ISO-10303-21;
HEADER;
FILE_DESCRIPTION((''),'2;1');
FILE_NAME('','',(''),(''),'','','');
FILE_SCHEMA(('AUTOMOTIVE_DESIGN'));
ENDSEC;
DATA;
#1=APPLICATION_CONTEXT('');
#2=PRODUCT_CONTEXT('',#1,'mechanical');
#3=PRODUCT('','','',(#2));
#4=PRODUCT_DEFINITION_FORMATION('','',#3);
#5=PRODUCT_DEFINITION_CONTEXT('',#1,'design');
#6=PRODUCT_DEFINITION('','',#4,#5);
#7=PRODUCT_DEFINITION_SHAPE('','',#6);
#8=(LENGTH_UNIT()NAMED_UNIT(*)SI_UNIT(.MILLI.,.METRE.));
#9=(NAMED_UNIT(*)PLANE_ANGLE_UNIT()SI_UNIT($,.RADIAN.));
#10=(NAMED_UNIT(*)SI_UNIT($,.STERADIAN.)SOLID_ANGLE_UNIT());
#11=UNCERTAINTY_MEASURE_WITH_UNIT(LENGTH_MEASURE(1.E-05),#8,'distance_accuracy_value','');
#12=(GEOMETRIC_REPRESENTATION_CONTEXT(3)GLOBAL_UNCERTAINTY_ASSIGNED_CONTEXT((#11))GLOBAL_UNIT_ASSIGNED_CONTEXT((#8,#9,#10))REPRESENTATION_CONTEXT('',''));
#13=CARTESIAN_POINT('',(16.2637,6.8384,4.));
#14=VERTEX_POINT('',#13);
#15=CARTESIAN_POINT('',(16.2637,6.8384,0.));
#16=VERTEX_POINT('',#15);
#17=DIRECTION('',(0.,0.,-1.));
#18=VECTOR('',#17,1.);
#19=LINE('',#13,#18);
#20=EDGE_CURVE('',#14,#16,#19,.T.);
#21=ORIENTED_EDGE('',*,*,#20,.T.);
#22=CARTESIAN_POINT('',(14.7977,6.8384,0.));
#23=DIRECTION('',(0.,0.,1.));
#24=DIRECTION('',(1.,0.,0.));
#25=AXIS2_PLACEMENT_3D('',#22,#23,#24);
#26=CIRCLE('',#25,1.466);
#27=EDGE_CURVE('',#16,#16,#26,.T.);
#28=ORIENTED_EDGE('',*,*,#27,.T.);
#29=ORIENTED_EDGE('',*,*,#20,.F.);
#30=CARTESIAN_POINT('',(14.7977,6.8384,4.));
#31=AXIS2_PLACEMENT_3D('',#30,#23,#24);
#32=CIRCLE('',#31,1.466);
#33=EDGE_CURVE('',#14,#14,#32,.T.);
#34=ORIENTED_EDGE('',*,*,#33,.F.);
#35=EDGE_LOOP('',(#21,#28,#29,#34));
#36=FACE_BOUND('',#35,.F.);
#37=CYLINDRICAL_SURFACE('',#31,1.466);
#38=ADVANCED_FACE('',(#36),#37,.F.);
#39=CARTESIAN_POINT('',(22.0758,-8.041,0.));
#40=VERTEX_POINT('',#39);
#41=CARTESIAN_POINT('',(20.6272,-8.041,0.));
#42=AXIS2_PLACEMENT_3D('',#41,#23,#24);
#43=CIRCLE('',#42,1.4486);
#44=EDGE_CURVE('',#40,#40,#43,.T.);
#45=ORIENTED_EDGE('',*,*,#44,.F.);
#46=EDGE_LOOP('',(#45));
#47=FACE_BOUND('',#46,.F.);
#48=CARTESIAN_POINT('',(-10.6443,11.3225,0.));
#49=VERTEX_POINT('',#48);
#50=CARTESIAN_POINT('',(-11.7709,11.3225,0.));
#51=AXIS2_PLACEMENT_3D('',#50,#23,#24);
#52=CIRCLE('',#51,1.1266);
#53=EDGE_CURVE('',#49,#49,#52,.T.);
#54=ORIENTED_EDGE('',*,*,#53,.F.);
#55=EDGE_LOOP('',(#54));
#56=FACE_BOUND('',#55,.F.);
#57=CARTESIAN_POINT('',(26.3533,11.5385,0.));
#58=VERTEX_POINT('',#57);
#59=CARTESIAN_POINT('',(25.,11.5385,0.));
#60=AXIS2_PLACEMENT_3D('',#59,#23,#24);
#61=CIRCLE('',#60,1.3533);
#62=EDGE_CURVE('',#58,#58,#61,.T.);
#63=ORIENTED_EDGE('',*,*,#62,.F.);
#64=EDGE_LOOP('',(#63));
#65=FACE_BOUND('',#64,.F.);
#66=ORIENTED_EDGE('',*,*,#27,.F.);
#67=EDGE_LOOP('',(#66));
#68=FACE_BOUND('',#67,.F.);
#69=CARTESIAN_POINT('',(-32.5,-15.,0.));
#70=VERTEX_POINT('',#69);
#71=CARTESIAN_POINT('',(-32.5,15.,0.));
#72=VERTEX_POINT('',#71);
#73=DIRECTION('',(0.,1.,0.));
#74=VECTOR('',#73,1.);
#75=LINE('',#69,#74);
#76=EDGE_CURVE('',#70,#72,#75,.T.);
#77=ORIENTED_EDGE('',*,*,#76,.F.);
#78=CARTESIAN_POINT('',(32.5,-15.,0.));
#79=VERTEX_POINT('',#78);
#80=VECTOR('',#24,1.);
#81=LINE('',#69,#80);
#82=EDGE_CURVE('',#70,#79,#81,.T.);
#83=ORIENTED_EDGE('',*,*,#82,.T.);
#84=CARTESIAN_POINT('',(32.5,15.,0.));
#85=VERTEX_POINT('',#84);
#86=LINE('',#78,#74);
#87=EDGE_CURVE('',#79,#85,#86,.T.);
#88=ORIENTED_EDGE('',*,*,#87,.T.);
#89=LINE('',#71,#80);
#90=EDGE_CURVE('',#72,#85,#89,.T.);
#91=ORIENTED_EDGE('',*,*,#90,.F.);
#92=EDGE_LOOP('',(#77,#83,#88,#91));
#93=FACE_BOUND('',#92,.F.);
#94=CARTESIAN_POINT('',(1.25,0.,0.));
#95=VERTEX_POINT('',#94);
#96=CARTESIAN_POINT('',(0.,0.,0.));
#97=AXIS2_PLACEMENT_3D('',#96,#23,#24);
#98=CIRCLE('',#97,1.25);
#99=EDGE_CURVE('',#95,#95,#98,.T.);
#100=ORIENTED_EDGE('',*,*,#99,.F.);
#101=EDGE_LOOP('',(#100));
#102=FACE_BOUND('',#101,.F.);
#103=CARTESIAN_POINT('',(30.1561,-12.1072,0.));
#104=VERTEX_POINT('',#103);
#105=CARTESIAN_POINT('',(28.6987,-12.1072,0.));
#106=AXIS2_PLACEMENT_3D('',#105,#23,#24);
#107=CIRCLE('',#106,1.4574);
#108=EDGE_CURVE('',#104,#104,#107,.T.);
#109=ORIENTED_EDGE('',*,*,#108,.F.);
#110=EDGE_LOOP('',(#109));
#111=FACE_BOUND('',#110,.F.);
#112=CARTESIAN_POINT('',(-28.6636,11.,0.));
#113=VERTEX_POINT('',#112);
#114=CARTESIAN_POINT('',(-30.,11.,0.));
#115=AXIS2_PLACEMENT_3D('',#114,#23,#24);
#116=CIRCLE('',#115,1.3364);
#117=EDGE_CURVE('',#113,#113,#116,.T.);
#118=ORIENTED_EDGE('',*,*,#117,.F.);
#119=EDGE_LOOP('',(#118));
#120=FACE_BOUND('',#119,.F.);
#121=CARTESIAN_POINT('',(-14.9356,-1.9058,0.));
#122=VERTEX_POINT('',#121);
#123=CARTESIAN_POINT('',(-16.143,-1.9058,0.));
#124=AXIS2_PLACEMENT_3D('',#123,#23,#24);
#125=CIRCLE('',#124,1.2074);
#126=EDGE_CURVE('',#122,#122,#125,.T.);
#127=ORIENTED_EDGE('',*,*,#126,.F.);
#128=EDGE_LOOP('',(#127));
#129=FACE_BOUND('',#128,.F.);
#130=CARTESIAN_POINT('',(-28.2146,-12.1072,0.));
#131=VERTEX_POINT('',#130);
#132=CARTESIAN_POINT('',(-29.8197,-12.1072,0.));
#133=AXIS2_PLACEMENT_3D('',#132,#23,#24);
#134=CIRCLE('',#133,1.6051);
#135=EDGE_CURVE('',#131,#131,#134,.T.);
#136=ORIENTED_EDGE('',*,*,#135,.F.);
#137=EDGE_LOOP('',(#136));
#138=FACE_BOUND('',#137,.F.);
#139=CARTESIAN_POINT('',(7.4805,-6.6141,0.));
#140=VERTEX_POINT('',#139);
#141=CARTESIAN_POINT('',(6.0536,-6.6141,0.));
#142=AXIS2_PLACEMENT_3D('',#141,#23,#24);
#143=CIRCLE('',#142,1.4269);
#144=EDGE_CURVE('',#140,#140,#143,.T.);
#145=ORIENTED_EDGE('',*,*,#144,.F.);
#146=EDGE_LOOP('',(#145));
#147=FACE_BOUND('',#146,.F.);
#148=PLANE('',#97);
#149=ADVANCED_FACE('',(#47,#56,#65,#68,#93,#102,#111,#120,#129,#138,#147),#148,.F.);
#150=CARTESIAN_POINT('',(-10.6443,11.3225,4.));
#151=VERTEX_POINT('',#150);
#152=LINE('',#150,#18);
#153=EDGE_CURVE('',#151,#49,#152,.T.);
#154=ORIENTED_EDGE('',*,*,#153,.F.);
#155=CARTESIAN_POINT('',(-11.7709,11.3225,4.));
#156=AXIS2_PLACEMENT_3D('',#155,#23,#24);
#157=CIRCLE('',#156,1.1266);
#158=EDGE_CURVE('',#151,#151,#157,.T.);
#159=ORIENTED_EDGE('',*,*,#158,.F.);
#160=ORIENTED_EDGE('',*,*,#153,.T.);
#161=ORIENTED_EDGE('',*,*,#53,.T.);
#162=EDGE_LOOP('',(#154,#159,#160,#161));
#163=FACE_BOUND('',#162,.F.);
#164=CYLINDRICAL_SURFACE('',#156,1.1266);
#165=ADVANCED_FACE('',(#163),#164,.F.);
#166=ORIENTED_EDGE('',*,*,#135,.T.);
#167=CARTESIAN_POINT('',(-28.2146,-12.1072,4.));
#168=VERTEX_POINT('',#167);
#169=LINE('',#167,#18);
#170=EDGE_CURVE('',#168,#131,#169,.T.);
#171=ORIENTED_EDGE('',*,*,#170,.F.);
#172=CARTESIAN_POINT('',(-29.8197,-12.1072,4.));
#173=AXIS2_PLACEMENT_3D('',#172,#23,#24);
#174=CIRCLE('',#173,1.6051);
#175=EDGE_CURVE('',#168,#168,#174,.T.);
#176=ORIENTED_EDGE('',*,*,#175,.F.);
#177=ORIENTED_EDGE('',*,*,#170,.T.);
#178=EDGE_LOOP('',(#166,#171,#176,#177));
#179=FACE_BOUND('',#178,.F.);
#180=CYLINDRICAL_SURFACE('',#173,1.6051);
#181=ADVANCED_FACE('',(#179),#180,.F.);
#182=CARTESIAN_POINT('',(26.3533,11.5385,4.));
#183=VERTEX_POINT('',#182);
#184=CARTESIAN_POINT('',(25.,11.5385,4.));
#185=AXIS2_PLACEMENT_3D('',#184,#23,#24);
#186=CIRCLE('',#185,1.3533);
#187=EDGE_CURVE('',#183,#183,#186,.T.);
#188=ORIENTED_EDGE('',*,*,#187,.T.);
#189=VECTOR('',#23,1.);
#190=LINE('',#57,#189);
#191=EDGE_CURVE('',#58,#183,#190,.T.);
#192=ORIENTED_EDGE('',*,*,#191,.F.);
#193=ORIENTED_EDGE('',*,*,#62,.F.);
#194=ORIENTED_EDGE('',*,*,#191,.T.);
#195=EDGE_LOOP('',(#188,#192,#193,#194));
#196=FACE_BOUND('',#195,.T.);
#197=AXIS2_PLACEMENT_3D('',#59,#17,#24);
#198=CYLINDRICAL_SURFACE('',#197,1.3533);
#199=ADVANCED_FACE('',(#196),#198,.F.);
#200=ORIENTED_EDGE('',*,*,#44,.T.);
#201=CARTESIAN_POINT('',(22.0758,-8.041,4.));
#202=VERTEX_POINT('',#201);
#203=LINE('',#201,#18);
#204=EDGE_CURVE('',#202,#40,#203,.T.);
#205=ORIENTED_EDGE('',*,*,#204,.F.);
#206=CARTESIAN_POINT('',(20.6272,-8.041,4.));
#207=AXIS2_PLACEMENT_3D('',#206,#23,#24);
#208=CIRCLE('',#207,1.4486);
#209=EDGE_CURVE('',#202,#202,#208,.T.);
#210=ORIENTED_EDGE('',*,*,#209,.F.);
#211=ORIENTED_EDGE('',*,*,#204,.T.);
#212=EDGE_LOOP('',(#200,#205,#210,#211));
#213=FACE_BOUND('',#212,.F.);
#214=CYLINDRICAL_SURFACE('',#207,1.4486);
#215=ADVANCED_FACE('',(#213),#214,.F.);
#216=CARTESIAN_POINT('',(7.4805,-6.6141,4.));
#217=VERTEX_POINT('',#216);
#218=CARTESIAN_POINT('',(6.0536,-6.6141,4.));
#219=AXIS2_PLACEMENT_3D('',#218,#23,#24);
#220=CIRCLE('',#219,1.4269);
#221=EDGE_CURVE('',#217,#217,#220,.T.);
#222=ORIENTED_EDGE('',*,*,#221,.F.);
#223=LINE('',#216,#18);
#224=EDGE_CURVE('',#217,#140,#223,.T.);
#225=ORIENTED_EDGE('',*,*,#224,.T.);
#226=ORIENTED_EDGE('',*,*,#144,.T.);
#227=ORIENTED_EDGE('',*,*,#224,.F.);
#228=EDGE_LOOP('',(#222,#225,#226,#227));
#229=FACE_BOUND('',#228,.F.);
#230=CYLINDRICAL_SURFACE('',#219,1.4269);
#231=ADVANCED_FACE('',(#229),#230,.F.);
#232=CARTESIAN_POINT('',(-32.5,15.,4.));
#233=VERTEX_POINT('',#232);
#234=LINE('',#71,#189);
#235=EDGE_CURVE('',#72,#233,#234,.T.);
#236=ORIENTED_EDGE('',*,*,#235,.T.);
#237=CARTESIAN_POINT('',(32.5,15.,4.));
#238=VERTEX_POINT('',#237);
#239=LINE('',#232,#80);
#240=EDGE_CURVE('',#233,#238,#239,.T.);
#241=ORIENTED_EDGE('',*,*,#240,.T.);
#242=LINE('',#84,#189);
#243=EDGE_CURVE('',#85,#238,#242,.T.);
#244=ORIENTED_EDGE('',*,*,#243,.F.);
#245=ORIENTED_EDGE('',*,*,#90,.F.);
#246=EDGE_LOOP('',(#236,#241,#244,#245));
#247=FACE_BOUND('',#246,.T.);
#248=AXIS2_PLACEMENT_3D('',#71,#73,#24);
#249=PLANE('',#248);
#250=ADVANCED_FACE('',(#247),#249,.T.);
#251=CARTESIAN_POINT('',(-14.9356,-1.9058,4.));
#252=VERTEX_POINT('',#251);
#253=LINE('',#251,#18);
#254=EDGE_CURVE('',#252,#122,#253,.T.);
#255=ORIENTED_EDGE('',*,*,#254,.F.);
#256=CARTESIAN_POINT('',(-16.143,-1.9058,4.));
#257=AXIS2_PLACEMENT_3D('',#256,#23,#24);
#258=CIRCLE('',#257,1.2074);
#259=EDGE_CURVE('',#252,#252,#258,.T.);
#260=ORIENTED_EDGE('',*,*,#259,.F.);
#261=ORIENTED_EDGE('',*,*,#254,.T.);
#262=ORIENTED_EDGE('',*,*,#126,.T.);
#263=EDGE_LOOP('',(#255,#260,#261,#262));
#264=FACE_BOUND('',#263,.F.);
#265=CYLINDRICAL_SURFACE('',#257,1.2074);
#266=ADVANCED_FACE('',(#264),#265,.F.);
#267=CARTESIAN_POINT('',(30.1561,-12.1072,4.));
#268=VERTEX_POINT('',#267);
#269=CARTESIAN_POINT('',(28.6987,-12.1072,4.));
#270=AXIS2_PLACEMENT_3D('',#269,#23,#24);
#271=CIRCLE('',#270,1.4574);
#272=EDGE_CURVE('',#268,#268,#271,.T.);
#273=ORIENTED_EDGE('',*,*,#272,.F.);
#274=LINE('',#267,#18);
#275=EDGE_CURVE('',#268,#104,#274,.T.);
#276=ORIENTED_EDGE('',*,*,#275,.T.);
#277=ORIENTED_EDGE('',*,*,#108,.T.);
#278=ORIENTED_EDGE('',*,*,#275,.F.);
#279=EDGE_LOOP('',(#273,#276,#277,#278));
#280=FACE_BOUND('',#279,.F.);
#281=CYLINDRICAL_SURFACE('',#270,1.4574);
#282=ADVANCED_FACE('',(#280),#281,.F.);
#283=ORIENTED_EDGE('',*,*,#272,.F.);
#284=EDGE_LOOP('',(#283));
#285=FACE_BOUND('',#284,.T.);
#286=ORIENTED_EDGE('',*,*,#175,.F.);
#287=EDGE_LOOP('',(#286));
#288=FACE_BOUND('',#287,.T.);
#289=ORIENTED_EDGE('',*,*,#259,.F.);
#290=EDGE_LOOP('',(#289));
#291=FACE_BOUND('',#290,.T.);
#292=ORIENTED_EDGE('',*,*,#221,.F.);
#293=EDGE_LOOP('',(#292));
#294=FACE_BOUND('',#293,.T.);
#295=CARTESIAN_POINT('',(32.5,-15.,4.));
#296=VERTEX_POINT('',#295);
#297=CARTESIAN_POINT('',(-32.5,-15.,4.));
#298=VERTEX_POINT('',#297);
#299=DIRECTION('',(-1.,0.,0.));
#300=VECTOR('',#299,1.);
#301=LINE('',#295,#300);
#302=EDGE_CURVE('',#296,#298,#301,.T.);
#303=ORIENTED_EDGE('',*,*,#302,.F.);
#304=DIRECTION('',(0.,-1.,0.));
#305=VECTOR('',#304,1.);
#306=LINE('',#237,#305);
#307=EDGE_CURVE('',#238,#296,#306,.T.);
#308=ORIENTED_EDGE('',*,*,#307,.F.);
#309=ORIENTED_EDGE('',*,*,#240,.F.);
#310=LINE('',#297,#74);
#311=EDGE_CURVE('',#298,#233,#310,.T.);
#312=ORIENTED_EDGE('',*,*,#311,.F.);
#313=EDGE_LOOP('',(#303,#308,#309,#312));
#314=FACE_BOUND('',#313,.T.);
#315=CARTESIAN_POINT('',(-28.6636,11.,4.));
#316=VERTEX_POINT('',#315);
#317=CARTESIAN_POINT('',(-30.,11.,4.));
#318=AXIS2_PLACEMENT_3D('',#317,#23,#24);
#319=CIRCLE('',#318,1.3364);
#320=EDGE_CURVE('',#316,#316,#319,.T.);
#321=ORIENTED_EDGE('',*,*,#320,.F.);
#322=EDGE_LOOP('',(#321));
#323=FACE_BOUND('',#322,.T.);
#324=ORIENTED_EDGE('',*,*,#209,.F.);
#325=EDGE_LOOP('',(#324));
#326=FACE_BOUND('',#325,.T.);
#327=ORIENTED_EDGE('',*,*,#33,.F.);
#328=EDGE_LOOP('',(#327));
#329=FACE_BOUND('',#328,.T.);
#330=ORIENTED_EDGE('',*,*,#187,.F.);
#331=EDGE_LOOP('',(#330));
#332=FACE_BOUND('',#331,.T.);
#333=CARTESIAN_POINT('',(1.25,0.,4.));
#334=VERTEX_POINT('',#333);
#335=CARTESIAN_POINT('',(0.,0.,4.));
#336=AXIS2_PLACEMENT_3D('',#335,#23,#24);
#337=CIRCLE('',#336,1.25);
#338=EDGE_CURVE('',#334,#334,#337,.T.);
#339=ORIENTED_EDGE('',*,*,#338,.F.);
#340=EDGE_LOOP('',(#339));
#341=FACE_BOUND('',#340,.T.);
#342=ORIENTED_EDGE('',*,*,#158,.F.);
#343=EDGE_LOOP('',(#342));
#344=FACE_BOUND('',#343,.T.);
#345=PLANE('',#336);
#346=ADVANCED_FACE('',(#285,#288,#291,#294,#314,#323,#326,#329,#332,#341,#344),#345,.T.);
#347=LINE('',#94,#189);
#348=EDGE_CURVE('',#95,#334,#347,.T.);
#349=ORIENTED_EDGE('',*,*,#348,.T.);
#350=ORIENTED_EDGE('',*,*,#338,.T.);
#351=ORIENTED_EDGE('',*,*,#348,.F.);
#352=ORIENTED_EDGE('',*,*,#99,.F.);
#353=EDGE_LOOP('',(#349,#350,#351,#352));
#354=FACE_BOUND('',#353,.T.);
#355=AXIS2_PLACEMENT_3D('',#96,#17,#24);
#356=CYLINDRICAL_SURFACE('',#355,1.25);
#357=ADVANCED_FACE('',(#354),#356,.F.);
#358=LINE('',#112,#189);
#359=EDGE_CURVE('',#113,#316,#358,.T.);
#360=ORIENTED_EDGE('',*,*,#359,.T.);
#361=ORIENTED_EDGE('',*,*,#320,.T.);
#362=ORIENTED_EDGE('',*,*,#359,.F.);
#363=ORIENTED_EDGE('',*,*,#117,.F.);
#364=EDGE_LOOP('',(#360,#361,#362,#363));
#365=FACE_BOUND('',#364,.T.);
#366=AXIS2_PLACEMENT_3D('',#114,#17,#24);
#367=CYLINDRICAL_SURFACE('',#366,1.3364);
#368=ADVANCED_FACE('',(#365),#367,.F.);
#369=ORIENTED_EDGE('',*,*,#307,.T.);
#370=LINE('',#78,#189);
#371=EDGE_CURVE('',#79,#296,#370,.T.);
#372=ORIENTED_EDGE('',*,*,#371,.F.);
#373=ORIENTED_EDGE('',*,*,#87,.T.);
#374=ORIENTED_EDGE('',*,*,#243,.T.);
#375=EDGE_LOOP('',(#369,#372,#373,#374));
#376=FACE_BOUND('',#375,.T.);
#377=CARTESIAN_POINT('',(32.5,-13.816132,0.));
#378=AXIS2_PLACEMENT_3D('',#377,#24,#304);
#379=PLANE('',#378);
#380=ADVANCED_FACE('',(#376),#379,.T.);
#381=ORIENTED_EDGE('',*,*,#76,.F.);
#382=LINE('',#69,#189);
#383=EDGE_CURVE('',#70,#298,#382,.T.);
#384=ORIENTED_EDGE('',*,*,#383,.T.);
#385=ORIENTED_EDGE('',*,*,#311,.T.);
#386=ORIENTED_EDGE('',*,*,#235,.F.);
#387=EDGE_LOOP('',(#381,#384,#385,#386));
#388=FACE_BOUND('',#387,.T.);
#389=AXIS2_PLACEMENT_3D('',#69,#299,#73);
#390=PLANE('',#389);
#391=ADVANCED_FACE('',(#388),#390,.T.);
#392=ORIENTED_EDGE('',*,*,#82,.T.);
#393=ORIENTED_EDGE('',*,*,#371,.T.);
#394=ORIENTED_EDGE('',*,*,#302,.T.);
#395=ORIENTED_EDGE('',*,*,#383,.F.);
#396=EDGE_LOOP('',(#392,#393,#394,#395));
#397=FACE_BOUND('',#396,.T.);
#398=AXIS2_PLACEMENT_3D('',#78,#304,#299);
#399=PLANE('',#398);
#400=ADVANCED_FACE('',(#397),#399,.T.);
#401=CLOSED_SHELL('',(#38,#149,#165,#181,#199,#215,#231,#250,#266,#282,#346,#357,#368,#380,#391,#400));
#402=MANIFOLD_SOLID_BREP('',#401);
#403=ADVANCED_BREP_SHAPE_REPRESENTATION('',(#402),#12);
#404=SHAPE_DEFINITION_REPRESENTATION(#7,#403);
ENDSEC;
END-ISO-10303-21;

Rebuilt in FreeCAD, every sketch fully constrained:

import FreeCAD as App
import Part
import Sketcher
from FreeCAD import Vector


def add_polygon(sketch, points):
    """Adds a closed chain of lines whose ends are joined by coincident constraints."""
    first, n = sketch.GeometryCount, len(points)
    for a, b in zip(points, points[1:] + points[:1]):
        sketch.addGeometry(Part.LineSegment(App.Vector(*a, 0), App.Vector(*b, 0)), False)
    for i in range(n):
        sketch.addConstraint(Sketcher.Constraint("Coincident", first + i, 2, first + (i + 1) % n, 1))

doc = App.newDocument("Part")
params = doc.addObject("Spreadsheet::Sheet", "Params")
for row, (alias, value) in enumerate([
    ("sketch1_diameter", "2.5 mm"),
    ("sketch1_width", "65 mm"),
    ("sketch1_height", "30 mm"),
    ("pad1_length", "4 mm"),
    ("pocket1_length", "5 mm"),
    ("pocket2_length", "5 mm"),
], start=1):
    params.set(f"A{row}", alias)
    params.set(f"B{row}", "=" + value)
    params.setAlias(f"B{row}", alias)

body = doc.addObject("PartDesign::Body", "Body")

sketch1 = doc.addObject("Sketcher::SketchObject", "Sketch")
body.addObject(sketch1)
sketch1.AttachmentSupport = (doc.XY_Plane, [""])
sketch1.MapMode = "FlatFace"
add_polygon(sketch1, [(32.5, -15), (32.5, 15), (-32.5, 15), (-32.5, -15)])
sketch1.addGeometry(Part.Circle(Vector(25, 11.5, 0), Vector(0, 0, 1), 1.4), False)
sketch1.addGeometry(Part.Circle(Vector(0, 0, 0), Vector(0, 0, 1), 1.2), False)
sketch1.addGeometry(Part.Circle(Vector(-30, 11, 0), Vector(0, 0, 1), 1.3), False)
sketch1.addConstraint([
    Sketcher.Constraint("Vertical", 0),
    Sketcher.Constraint("Horizontal", 1),
    Sketcher.Constraint("Vertical", 2),
    Sketcher.Constraint("Horizontal", 3),
    Sketcher.Constraint("Coincident", 5, 3, -1, 1),
    Sketcher.Constraint("Symmetric", 0, 2, 2, 2, -1, 1),
    Sketcher.Constraint("Diameter", 5, 2.5),
    Sketcher.Constraint("DistanceX", 1, 2, 1, 1, 65.0),
    Sketcher.Constraint("DistanceY", 0, 1, 0, 2, 30.0),
    Sketcher.Constraint("DistanceX", -1, 1, 4, 3, 25.0),
    Sketcher.Constraint("DistanceX", 6, 3, -1, 1, 30.0),
    Sketcher.Constraint("DistanceY", 2, 2, 6, 3, 26.0),
    Sketcher.Constraint("Diameter", 4, 2.7066),
    Sketcher.Constraint("Diameter", 6, 2.6728),
    Sketcher.Constraint("DistanceY", -1, 1, 4, 3, 11.5385),
])
sketch1.setExpression("Constraints[10]", "Params.sketch1_diameter")
sketch1.setExpression("Constraints[11]", "Params.sketch1_width")
sketch1.setExpression("Constraints[12]", "Params.sketch1_height")
pad1 = doc.addObject("PartDesign::Pad", "Pad")
body.addObject(pad1)
pad1.Profile = sketch1
pad1.setExpression("Length", "Params.pad1_length")

sketch2 = doc.addObject("Sketcher::SketchObject", "Sketch001")
body.addObject(sketch2)
sketch2.AttachmentSupport = (doc.XY_Plane, [""])
sketch2.MapMode = "FlatFace"
sketch2.AttachmentOffset = App.Placement(Vector(0, 0, 4), App.Rotation())
sketch2.addGeometry([
    Part.Circle(Vector(-29.8, -12.1, 0), Vector(0, 0, 1), 1.6),
    Part.Circle(Vector(28.7, -12.1, 0), Vector(0, 0, 1), 1.5),
], False)
sketch2.addConstraint([
    Sketcher.Constraint("Horizontal", 0, 3, 1, 3),
    Sketcher.Constraint("Diameter", 0, 3.2102),
    Sketcher.Constraint("Diameter", 1, 2.9148),
    Sketcher.Constraint("DistanceX", 0, 3, -1, 1, 29.8197),
    Sketcher.Constraint("DistanceY", 0, 3, -1, 1, 12.1072),
    Sketcher.Constraint("DistanceX", -1, 1, 1, 3, 28.6987),
])
pocket1 = doc.addObject("PartDesign::Pocket", "Pocket")
body.addObject(pocket1)
pocket1.Profile = sketch2
pocket1.setExpression("Length", "Params.pocket1_length")

sketch3 = doc.addObject("Sketcher::SketchObject", "Sketch002")
body.addObject(sketch3)
sketch3.AttachmentSupport = (doc.XY_Plane, [""])
sketch3.MapMode = "FlatFace"
sketch3.AttachmentOffset = App.Placement(Vector(0, 0, 4), App.Rotation())
sketch3.addGeometry([
    Part.Circle(Vector(-16.1, -1.9, 0), Vector(0, 0, 1), 1.2),
    Part.Circle(Vector(-11.8, 11.3, 0), Vector(0, 0, 1), 1.1),
    Part.Circle(Vector(6.1, -6.6, 0), Vector(0, 0, 1), 1.4),
    Part.Circle(Vector(14.8, 6.8, 0), Vector(0, 0, 1), 1.5),
    Part.Circle(Vector(20.6, -8, 0), Vector(0, 0, 1), 1.4),
], False)
sketch3.addConstraint([
    Sketcher.Constraint("Diameter", 3, 2.932),
    Sketcher.Constraint("Diameter", 0, 2.4148),
    Sketcher.Constraint("Diameter", 1, 2.2532),
    Sketcher.Constraint("Diameter", 2, 2.8538),
    Sketcher.Constraint("Diameter", 4, 2.8972),
    Sketcher.Constraint("DistanceX", 0, 3, -1, 1, 16.143),
    Sketcher.Constraint("DistanceX", 1, 3, -1, 1, 11.771),
    Sketcher.Constraint("DistanceY", 2, 3, -1, 1, 6.614),
    Sketcher.Constraint("DistanceY", 4, 3, -1, 1, 8.041),
    Sketcher.Constraint("DistanceX", 2, 3, 3, 3, 8.744),
    Sketcher.Constraint("DistanceY", 3, 3, 1, 3, 4.484),
    Sketcher.Constraint("DistanceX", 1, 3, 4, 3, 32.398),
    Sketcher.Constraint("DistanceY", 0, 3, -1, 1, 1.9058),
    Sketcher.Constraint("DistanceY", -1, 1, 1, 3, 11.3225),
    Sketcher.Constraint("DistanceX", -1, 1, 2, 3, 6.0536),
])
pocket2 = doc.addObject("PartDesign::Pocket", "Pocket001")
body.addObject(pocket2)
pocket2.Profile = sketch3
pocket2.setExpression("Length", "Params.pocket2_length")

doc.recompute()
